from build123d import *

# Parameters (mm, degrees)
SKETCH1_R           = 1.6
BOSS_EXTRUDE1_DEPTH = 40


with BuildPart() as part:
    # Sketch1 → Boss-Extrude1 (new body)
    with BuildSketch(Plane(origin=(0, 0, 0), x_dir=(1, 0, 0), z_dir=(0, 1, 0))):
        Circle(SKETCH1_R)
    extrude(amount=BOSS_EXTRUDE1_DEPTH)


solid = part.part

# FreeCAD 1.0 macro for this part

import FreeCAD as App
import Part
import Sketcher

doc = App.newDocument("Part")
params = doc.addObject("Spreadsheet::Sheet", "Params")
for row, (alias, value) in enumerate([
    ("sketch1_diameter", "3.2 mm"),
    ("pad1_length", "40 mm"),
], start=1):
    params.set(f"A{row}", alias)
    params.set(f"B{row}", "=" + value)
    params.setAlias(f"B{row}", alias)

body = doc.addObject("PartDesign::Body", "Body")

# Sketch on XZ plane
sketch1 = body.newObject("Sketcher::SketchObject", "Sketch")
sketch1.AttachmentSupport = (doc.getObject("XZ_Plane"), [""])
sketch1.MapMode = "FlatFace"
sketch1.addGeometry(Part.Circle(App.Vector(0, 0, 0), App.Vector(0, 0, 1), 1.6), False)
sketch1.addConstraint(Sketcher.Constraint("Coincident", 0, 3, -1, 1))
sketch1.addConstraint(Sketcher.Constraint("Diameter", 0, 3.2))
sketch1.setExpression("Constraints[1]", "Params.sketch1_diameter")
pad1 = body.newObject("PartDesign::Pad", "Pad")
pad1.Profile = sketch1
pad1.setExpression("Length", "Params.pad1_length")
pad1.Reversed = True

doc.recompute()
